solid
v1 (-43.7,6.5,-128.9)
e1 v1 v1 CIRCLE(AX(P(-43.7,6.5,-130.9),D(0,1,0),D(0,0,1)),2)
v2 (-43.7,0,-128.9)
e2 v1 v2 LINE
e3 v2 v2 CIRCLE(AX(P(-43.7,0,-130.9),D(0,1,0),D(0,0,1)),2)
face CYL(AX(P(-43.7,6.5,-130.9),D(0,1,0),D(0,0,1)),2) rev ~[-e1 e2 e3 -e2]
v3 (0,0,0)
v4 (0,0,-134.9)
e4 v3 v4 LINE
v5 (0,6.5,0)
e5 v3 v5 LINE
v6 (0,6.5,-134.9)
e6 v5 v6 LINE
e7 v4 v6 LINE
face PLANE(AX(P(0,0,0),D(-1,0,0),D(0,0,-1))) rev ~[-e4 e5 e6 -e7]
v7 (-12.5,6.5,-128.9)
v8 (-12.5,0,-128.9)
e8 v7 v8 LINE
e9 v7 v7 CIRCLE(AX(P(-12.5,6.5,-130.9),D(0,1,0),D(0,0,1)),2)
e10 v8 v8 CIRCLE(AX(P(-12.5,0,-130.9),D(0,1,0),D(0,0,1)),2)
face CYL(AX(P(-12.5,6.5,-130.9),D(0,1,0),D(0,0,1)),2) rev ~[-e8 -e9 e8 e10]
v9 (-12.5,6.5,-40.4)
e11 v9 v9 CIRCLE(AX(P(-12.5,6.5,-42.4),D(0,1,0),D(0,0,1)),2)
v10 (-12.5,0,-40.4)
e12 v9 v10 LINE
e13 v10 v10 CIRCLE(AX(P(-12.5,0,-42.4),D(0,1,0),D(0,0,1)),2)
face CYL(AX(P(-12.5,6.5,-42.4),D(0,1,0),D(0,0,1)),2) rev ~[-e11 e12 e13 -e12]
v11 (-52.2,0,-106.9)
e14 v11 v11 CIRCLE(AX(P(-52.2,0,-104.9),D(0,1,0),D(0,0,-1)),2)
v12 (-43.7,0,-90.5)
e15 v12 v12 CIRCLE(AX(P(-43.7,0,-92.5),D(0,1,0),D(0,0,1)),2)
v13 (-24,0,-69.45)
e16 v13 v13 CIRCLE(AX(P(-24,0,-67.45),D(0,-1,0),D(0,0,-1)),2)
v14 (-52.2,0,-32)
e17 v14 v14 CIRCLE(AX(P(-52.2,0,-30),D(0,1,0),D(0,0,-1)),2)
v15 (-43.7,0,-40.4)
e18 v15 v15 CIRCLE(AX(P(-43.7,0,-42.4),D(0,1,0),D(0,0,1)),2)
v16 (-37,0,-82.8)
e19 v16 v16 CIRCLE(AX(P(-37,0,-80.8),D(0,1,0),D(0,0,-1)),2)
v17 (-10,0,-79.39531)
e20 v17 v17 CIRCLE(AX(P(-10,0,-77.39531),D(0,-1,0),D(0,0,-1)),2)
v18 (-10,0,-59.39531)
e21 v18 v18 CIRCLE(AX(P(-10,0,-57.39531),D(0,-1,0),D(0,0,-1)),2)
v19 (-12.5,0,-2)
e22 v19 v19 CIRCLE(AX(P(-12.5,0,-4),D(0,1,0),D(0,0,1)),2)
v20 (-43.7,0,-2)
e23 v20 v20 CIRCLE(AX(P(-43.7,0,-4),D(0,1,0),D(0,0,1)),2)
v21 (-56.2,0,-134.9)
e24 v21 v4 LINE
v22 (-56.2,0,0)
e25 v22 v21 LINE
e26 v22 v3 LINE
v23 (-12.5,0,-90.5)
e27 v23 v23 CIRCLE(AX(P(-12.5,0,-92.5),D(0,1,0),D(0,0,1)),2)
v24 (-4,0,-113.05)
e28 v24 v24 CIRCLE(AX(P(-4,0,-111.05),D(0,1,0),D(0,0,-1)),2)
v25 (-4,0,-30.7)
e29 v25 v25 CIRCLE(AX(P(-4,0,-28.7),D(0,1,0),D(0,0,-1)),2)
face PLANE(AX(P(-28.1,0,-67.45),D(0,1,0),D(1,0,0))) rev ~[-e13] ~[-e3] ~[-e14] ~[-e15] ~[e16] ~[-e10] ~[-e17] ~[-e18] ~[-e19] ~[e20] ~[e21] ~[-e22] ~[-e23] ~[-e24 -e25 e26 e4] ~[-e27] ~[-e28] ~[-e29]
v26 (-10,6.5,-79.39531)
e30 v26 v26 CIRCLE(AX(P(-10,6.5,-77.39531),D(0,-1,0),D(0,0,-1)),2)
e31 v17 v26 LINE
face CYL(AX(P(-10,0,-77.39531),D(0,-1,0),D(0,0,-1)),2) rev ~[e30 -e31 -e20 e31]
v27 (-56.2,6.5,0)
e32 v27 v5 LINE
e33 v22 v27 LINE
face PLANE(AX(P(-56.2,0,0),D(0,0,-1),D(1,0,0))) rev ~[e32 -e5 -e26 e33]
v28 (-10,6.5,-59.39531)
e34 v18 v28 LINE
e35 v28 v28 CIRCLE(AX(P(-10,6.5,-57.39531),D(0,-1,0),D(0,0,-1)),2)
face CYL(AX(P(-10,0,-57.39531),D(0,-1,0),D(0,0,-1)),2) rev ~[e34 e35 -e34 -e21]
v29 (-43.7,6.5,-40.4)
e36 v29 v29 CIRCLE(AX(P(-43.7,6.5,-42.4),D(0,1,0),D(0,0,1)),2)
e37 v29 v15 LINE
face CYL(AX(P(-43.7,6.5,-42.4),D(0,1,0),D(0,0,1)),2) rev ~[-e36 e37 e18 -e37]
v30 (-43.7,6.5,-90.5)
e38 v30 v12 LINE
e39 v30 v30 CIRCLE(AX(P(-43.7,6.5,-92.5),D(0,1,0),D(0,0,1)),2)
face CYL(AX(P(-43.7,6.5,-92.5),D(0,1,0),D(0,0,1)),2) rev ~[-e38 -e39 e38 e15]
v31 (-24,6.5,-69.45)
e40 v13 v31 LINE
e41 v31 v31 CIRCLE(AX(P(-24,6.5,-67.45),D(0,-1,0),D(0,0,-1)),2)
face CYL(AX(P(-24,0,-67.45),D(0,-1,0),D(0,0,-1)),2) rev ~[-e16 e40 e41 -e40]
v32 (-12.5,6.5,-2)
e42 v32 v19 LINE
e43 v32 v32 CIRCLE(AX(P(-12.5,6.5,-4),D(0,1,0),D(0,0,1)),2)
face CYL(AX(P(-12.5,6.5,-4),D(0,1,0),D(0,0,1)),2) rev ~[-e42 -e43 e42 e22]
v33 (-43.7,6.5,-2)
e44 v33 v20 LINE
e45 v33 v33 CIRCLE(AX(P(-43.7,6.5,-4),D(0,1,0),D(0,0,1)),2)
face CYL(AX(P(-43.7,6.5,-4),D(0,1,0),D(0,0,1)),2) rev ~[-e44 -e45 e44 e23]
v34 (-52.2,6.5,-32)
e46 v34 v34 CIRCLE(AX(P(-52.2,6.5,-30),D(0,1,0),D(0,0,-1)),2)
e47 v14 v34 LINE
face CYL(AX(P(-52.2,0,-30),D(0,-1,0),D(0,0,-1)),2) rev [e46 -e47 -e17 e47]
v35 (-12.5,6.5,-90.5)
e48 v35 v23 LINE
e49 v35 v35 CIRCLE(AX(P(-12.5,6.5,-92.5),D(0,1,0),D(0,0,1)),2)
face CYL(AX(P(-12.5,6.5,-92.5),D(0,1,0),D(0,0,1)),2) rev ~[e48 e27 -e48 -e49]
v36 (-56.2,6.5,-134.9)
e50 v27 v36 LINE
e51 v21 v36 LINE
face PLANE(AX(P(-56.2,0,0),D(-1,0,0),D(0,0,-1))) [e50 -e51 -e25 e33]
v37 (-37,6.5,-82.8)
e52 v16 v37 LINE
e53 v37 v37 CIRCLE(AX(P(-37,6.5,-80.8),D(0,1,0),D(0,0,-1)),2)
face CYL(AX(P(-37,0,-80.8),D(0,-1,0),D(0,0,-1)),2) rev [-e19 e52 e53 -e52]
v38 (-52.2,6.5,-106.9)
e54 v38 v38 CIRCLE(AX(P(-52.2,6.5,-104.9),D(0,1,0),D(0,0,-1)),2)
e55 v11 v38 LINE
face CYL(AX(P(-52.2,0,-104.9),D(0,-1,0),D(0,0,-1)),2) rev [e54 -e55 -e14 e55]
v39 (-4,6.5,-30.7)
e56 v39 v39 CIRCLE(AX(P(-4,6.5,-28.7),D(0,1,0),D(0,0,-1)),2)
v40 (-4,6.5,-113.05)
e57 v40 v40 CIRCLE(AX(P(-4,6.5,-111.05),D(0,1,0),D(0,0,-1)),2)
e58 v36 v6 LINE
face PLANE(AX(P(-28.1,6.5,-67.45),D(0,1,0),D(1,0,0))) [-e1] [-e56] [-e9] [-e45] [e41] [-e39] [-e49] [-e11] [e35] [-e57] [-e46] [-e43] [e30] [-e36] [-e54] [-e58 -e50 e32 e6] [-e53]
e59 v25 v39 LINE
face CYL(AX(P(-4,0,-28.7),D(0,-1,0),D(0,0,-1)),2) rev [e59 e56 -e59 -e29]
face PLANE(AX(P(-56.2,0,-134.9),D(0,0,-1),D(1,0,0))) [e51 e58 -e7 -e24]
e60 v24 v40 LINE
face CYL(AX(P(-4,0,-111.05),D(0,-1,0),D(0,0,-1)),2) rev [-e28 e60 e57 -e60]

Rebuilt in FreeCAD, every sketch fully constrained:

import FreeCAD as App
import Part
import Sketcher
from FreeCAD import Vector
Q = App.Units.Quantity


def add_polygon(sketch, points):
    """Adds a closed chain of lines whose ends are joined by coincident constraints."""
    first, n = sketch.GeometryCount, len(points)
    for a, b in zip(points, points[1:] + points[:1]):
        sketch.addGeometry(Part.LineSegment(App.Vector(*a, 0), App.Vector(*b, 0)), False)
    for i in range(n):
        sketch.addConstraint(Sketcher.Constraint("Coincident", first + i, 2, first + (i + 1) % n, 1))

doc = App.newDocument("Part")
body = doc.addObject("PartDesign::Body", "Body")

# Sketch on XZ plane
sketch1 = body.newObject("Sketcher::SketchObject", "Sketch")
sketch1.AttachmentSupport = (doc.getObject("XZ_Plane"), [""])
sketch1.MapMode = "FlatFace"
add_polygon(sketch1, [(-56.2, -134.9), (-56.2, 0), (0, 0), (0, -134.9)])  # lines 0-3
sketch1.addGeometry(Part.Circle(Vector(-52.2, -30, 0), Vector(0, 0, 1), 2), False)  # 4
sketch1.addGeometry(Part.Circle(Vector(-4, -28.7, 0), Vector(0, 0, 1), 2), False)  # 5
sketch1.addGeometry(Part.Circle(Vector(-37, -80.8, 0), Vector(0, 0, 1), 2), False)  # 6
sketch1.addGeometry(Part.Circle(Vector(-52.2, -104.9, 0), Vector(0, 0, 1), 2), False)  # 7
sketch1.addGeometry(Part.Circle(Vector(-4, -111, 0), Vector(0, 0, 1), 2), False)  # 8
sketch1.addConstraint([
    Sketcher.Constraint("Vertical", 0),
    Sketcher.Constraint("Horizontal", 1),
    Sketcher.Constraint("Vertical", 2),
    Sketcher.Constraint("Horizontal", 3),
    Sketcher.Constraint("Coincident", 1, 2, -1, 1),
    Sketcher.Constraint("Equal", 4, 5),
    Sketcher.Constraint("Equal", 5, 6),
    Sketcher.Constraint("Equal", 6, 7),
    Sketcher.Constraint("Equal", 7, 8),
    Sketcher.Constraint("Vertical", 4, 3, 7, 3),
    Sketcher.Constraint("Vertical", 5, 3, 8, 3),
    Sketcher.Constraint("Diameter", 4, Q("4 mm")),
    Sketcher.Constraint("DistanceX", 1, 1, 1, 2, Q("56.2 mm")),
    Sketcher.Constraint("DistanceY", 0, 1, 0, 2, Q("134.9 mm")),
    Sketcher.Constraint("DistanceY", 4, 3, -1, 1, Q("30 mm")),
    Sketcher.Constraint("DistanceX", 5, 3, -1, 1, Q("4 mm")),
    Sketcher.Constraint("DistanceX", 6, 3, -1, 1, Q("37 mm")),
    Sketcher.Constraint("DistanceX", 0, 2, 4, 3, Q("4 mm")),
    Sketcher.Constraint("DistanceY", 2, 2, 7, 3, Q("30 mm")),
    Sketcher.Constraint("DistanceY", 5, 3, -1, 1, Q("28.7 mm")),
    Sketcher.Constraint("DistanceY", 6, 3, -1, 1, Q("80.8 mm")),
    Sketcher.Constraint("DistanceY", 8, 3, -1, 1, Q("111.05 mm")),
])
pad1 = body.newObject("PartDesign::Pad", "Pad")
pad1.Profile = sketch1
pad1.Length = 6.5
pad1.Reversed = True

# Sketch on XZ plane
sketch2 = body.newObject("Sketcher::SketchObject", "Sketch001")
sketch2.AttachmentSupport = (doc.getObject("XZ_Plane"), [""])
sketch2.MapMode = "FlatFace"
sketch2.AttachmentOffset = App.Placement(Vector(0, 0, -6.5), App.Rotation())
sketch2.addGeometry([
    Part.Circle(Vector(-43.7, -4, 0), Vector(0, 0, 1), 2),  # 0
    Part.Circle(Vector(-12.5, -4, 0), Vector(0, 0, 1), 2),  # 1
    Part.Circle(Vector(-43.7, -42.4, 0), Vector(0, 0, 1), 2),  # 2
    Part.Circle(Vector(-12.5, -42.4, 0), Vector(0, 0, 1), 2),  # 3
    Part.Circle(Vector(-43.7, -130.9, 0), Vector(0, 0, 1), 2),  # 4
    Part.Circle(Vector(-12.5, -130.9, 0), Vector(0, 0, 1), 2),  # 5
    Part.Circle(Vector(-12.5, -92.5, 0), Vector(0, 0, 1), 2),  # 6
    Part.Circle(Vector(-43.7, -92.5, 0), Vector(0, 0, 1), 2),  # 7
], False)
sketch2.addConstraint([
    Sketcher.Constraint("Equal", 0, 1),
    Sketcher.Constraint("Equal", 1, 2),
    Sketcher.Constraint("Equal", 2, 3),
    Sketcher.Constraint("Equal", 3, 4),
    Sketcher.Constraint("Equal", 4, 5),
    Sketcher.Constraint("Equal", 5, 6),
    Sketcher.Constraint("Equal", 6, 7),
    Sketcher.Constraint("Horizontal", 0, 3, 1, 3),
    Sketcher.Constraint("Horizontal", 2, 3, 3, 3),
    Sketcher.Constraint("Horizontal", 4, 3, 5, 3),
    Sketcher.Constraint("Horizontal", 6, 3, 7, 3),
    Sketcher.Constraint("Vertical", 0, 3, 2, 3),
    Sketcher.Constraint("Vertical", 1, 3, 3, 3),
    Sketcher.Constraint("Vertical", 2, 3, 4, 3),
    Sketcher.Constraint("Vertical", 3, 3, 5, 3),
    Sketcher.Constraint("Vertical", 5, 3, 6, 3),
    Sketcher.Constraint("Vertical", 4, 3, 7, 3),
    Sketcher.Constraint("Diameter", 0, Q("4 mm")),
    Sketcher.Constraint("DistanceY", 0, 3, -1, 1, Q("4 mm")),
    Sketcher.Constraint("DistanceX", 0, 3, -1, 1, Q("43.7 mm")),
    Sketcher.Constraint("DistanceX", 1, 3, -1, 1, Q("12.5 mm")),
    Sketcher.Constraint("DistanceY", 2, 3, -1, 1, Q("42.4 mm")),
    Sketcher.Constraint("DistanceY", 4, 3, -1, 1, Q("130.9 mm")),
    Sketcher.Constraint("DistanceY", 6, 3, -1, 1, Q("92.5 mm")),
])
pocket1 = body.newObject("PartDesign::Pocket", "Pocket")
pocket1.Profile = sketch2
pocket1.Type = "ThroughAll"
pocket1.Reversed = True

# Sketch on XZ plane
sketch3 = body.newObject("Sketcher::SketchObject", "Sketch002")
sketch3.AttachmentSupport = (doc.getObject("XZ_Plane"), [""])
sketch3.MapMode = "FlatFace"
sketch3.addGeometry([
    Part.Circle(Vector(-24, -67.5, 0), Vector(0, 0, 1), 2),
    Part.Circle(Vector(-10, -77.4, 0), Vector(0, 0, 1), 2),
    Part.Circle(Vector(-10, -57.4, 0), Vector(0, 0, 1), 2),
], False)
sketch3.addConstraint([
    Sketcher.Constraint("Equal", 0, 1),
    Sketcher.Constraint("Equal", 1, 2),
    Sketcher.Constraint("Vertical", 1, 3, 2, 3),
    Sketcher.Constraint("Diameter", 0, Q("4 mm")),
    Sketcher.Constraint("DistanceX", 0, 3, -1, 1, Q("24 mm")),
    Sketcher.Constraint("DistanceX", 1, 3, -1, 1, Q("10 mm")),
    Sketcher.Constraint("DistanceY", 1, 3, 2, 3, Q("20 mm")),
    Sketcher.Constraint("DistanceY", 0, 3, -1, 1, Q("67.45 mm")),
    Sketcher.Constraint("DistanceY", 1, 3, -1, 1, Q("77.39531 mm")),
])
pocket2 = body.newObject("PartDesign::Pocket", "Pocket001")
pocket2.Profile = sketch3
pocket2.Type = "ThroughAll"

doc.recompute()
